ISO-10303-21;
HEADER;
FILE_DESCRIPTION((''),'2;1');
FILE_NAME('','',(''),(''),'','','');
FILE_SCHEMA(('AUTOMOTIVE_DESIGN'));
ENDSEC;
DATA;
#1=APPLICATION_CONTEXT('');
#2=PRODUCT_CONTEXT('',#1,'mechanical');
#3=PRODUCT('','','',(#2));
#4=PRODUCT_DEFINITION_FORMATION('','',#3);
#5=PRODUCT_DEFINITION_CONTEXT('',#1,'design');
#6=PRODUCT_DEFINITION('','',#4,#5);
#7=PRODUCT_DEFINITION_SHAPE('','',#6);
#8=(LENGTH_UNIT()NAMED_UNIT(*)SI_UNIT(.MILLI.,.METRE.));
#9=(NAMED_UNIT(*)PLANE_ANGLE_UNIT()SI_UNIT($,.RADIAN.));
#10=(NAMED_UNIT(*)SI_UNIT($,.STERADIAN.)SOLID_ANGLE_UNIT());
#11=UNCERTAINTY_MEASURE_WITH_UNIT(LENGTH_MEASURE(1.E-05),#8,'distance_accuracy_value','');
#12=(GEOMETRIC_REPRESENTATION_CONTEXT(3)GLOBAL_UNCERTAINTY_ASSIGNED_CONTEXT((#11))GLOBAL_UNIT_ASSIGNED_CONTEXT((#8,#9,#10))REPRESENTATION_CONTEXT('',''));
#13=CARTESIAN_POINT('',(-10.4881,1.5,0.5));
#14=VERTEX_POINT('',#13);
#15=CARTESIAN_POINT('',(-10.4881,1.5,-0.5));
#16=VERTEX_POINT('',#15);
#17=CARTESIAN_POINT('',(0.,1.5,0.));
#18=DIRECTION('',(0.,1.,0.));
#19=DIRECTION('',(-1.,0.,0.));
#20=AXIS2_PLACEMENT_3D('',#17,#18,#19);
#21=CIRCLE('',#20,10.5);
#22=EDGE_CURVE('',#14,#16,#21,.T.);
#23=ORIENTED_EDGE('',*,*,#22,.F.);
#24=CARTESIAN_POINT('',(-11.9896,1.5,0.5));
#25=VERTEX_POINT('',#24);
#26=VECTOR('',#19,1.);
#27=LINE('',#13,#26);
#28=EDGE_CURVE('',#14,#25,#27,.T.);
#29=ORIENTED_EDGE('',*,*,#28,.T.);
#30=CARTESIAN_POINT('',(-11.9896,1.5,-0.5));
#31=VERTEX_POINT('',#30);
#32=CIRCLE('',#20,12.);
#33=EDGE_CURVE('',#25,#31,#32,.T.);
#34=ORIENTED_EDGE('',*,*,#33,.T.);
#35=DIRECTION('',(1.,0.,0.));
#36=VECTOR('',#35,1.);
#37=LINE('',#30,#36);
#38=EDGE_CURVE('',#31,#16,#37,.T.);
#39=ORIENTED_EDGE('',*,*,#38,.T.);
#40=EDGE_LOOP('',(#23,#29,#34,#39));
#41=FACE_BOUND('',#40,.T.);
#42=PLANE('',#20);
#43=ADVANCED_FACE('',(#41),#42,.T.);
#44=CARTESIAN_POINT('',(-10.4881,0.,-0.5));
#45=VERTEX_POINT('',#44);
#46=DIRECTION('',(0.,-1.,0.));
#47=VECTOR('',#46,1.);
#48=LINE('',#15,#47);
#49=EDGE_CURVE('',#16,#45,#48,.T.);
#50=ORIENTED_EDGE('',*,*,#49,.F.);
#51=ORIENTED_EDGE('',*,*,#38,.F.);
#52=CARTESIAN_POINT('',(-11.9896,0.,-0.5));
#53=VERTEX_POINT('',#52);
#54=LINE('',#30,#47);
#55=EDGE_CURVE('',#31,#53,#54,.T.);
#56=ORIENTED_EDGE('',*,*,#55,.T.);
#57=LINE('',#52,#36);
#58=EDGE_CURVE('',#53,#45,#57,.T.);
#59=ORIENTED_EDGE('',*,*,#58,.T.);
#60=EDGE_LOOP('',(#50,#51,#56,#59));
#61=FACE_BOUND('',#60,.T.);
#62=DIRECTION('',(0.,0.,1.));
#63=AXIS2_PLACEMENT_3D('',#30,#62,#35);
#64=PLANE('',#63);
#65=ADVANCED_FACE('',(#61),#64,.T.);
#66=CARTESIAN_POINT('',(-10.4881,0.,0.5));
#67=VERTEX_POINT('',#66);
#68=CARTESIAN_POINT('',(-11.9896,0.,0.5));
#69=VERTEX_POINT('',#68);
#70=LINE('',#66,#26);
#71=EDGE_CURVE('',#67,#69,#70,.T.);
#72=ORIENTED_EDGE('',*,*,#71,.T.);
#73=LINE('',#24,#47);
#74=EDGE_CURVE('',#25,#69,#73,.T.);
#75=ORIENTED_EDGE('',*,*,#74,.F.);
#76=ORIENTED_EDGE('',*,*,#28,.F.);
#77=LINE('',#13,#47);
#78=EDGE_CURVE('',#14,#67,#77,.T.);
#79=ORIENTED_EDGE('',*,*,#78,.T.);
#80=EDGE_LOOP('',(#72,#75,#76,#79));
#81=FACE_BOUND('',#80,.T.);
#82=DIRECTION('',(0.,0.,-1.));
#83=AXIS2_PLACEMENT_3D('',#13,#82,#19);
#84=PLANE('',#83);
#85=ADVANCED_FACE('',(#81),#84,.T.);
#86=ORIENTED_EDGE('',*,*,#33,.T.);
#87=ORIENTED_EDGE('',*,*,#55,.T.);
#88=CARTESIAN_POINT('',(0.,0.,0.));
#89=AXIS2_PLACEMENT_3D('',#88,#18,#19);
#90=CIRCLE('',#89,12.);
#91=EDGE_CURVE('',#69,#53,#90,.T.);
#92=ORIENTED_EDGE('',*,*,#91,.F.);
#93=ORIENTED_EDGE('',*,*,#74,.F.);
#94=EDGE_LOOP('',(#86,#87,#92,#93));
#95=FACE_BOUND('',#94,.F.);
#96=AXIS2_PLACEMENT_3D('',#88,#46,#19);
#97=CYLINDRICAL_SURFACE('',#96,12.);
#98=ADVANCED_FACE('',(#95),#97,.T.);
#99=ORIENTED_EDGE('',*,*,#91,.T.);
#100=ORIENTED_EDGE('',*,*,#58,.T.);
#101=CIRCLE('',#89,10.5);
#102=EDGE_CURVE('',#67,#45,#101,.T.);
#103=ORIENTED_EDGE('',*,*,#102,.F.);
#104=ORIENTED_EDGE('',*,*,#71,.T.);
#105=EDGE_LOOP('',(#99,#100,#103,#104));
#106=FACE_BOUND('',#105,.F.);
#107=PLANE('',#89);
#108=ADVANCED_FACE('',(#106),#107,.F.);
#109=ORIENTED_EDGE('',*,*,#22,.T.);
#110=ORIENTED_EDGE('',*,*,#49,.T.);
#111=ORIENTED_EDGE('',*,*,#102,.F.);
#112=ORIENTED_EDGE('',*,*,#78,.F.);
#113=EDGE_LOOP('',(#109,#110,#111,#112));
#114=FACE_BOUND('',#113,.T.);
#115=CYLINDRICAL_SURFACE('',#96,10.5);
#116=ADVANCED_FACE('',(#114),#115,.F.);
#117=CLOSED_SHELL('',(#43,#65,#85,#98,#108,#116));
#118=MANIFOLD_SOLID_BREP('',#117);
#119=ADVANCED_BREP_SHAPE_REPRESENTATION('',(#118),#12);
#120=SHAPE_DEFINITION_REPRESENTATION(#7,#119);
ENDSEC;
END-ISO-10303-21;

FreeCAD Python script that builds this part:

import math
import FreeCAD as App
import Part
import Sketcher

V = App.Vector
Q = App.Units.Quantity

doc = App.newDocument("Part")
body = doc.addObject("PartDesign::Body", "Body")

sketch1 = body.newObject("Sketcher::SketchObject", "Sketch")
sketch1.AttachmentSupport = (doc.getObject("XZ_Plane"), [""])
sketch1.MapMode = "FlatFace"
sketch1.addGeometry(Part.Circle(V(0, 0, 0), V(0, 0, 1), 12), False)
sketch1.addGeometry(Part.Circle(V(0, 0, 0), V(0, 0, 1), 10), False)
sketch1.addConstraint(Sketcher.Constraint("Coincident", 0, 3, -1, 1))
sketch1.addConstraint(Sketcher.Constraint("Coincident", 1, 3, -1, 1))
sketch1.addConstraint(Sketcher.Constraint("Diameter", 0, Q("24 mm")))
sketch1.addConstraint(Sketcher.Constraint("Diameter", 1, Q("21 mm")))
pad1 = body.newObject("PartDesign::Pad", "Pad")
pad1.Profile = sketch1
pad1.Length = 1.5
pad1.Reversed = True

sketch2 = body.newObject("Sketcher::SketchObject", "Sketch001")
sketch2.AttachmentSupport = (doc.getObject("XZ_Plane"), [""])
sketch2.MapMode = "FlatFace"
sketch2.AttachmentOffset = App.Placement(V(0, 0, -1.5), App.Rotation())
sketch2.addGeometry(Part.LineSegment(V(-10.5, -0.5, 0), V(-12, -0.5, 0)), False)
sketch2.addGeometry(Part.ArcOfCircle(Part.Circle(V(0, 0, 0), V(0, 0, 1), 12), math.radians(177.61), math.radians(182.39)), False)
sketch2.addGeometry(Part.LineSegment(V(-12, 0.5, 0), V(-10.5, 0.5, 0)), False)
sketch2.addGeometry(Part.ArcOfCircle(Part.Circle(V(0, 0, 0), V(0, 0, 1), 10.5), math.radians(177.27), math.radians(182.73)), False)
sketch2.addConstraint(Sketcher.Constraint("Coincident", 0, 2, 1, 2))
sketch2.addConstraint(Sketcher.Constraint("Coincident", 1, 1, 2, 1))
sketch2.addConstraint(Sketcher.Constraint("Coincident", 2, 2, 3, 1))
sketch2.addConstraint(Sketcher.Constraint("Coincident", 3, 2, 0, 1))
sketch2.addConstraint(Sketcher.Constraint("Horizontal", 0))
sketch2.addConstraint(Sketcher.Constraint("Horizontal", 2))
sketch2.addConstraint(Sketcher.Constraint("Coincident", 1, 3, -1, 1))
sketch2.addConstraint(Sketcher.Constraint("Coincident", 3, 3, -1, 1))
sketch2.addConstraint(Sketcher.Constraint("Vertical", 0, 2, 1, 1))
sketch2.addConstraint(Sketcher.Constraint("Radius", 1, Q("12 mm")))
sketch2.addConstraint(Sketcher.Constraint("DistanceY", 0, 2, 1, 1, Q("1 mm")))
sketch2.addConstraint(Sketcher.Constraint("Radius", 3, Q("10.5 mm")))
pocket1 = body.newObject("PartDesign::Pocket", "Pocket")
pocket1.Profile = sketch2
pocket1.Length = 1.5
pocket1.Reversed = True

doc.recompute()
